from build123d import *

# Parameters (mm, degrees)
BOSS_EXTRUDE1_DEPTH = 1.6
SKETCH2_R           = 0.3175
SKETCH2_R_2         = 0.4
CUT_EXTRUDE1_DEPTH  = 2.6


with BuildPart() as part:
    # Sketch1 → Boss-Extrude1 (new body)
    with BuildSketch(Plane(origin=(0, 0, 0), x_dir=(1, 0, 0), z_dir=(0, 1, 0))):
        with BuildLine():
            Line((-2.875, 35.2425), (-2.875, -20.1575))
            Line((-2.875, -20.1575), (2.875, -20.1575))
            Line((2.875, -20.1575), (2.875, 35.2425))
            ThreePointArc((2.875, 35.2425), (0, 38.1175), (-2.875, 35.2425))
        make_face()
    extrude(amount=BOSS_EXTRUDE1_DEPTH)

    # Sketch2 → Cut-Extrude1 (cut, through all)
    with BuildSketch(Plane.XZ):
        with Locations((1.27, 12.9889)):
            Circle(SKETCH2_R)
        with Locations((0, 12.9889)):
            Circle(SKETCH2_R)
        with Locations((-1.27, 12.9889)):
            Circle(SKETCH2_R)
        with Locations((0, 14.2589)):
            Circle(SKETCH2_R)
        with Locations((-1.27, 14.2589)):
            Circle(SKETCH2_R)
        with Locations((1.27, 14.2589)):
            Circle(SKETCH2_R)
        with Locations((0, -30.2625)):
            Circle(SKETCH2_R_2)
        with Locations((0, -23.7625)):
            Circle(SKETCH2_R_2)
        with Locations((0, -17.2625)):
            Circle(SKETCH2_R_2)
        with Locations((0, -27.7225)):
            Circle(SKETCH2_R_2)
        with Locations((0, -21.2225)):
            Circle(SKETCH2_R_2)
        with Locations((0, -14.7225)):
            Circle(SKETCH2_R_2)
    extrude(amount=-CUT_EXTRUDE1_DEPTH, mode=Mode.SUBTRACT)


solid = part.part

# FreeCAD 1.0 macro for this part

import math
import FreeCAD as App
import Part
import Sketcher

doc = App.newDocument("Part")
body = doc.addObject("PartDesign::Body", "Body")

# Sketch on XZ plane
sketch1 = body.newObject("Sketcher::SketchObject", "Sketch")
sketch1.AttachmentSupport = (doc.getObject("XZ_Plane"), [""])
sketch1.MapMode = "FlatFace"
sketch1.addGeometry([
    Part.LineSegment(App.Vector(-2.9, -35.2, 0), App.Vector(-2.9, 20.2, 0)),
    Part.LineSegment(App.Vector(-2.9, 20.2, 0), App.Vector(2.9, 20.2, 0)),
    Part.LineSegment(App.Vector(2.9, 20.2, 0), App.Vector(2.9, -35.2, 0)),
    Part.ArcOfCircle(Part.Circle(App.Vector(0, -35.2, 0), App.Vector(0, 0, 1), 2.9), math.radians(180), math.radians(360)),
], False)
sketch1.addConstraint([
    Sketcher.Constraint("Coincident", 0, 2, 1, 1),
    Sketcher.Constraint("Coincident", 1, 2, 2, 1),
    Sketcher.Constraint("Tangent", 2, 2, 3, 2),
    Sketcher.Constraint("Tangent", 3, 1, 0, 1),
    Sketcher.Constraint("Vertical", 0),
    Sketcher.Constraint("Horizontal", 1),
    Sketcher.Constraint("Vertical", 2),
    Sketcher.Constraint("PointOnObject", 3, 3, -2),
    Sketcher.Constraint("DistanceY", 0, 1, 0, 2, 55.4),
    Sketcher.Constraint("Radius", 3, 2.875),
    Sketcher.Constraint("DistanceY", 3, 3, -1, 1, 35.2425),
])
pad1 = body.newObject("PartDesign::Pad", "Pad")
pad1.Profile = sketch1
pad1.Length = 1.6
pad1.Reversed = True

# Sketch on XZ plane
sketch2 = body.newObject("Sketcher::SketchObject", "Sketch001")
sketch2.AttachmentSupport = (doc.getObject("XZ_Plane"), [""])
sketch2.MapMode = "FlatFace"
sketch2.addGeometry([
    Part.Circle(App.Vector(1.27, 12.99, 0), App.Vector(0, 0, 1), 0.32),  # 0
    Part.Circle(App.Vector(0, 12.99, 0), App.Vector(0, 0, 1), 0.32),  # 1
    Part.Circle(App.Vector(-1.27, 12.99, 0), App.Vector(0, 0, 1), 0.32),  # 2
    Part.Circle(App.Vector(0, 14.26, 0), App.Vector(0, 0, 1), 0.32),  # 3
    Part.Circle(App.Vector(-1.27, 14.26, 0), App.Vector(0, 0, 1), 0.32),  # 4
    Part.Circle(App.Vector(1.27, 14.26, 0), App.Vector(0, 0, 1), 0.32),  # 5
    Part.Circle(App.Vector(0, -30.26, 0), App.Vector(0, 0, 1), 0.4),  # 6
    Part.Circle(App.Vector(0, -23.76, 0), App.Vector(0, 0, 1), 0.4),  # 7
    Part.Circle(App.Vector(0, -17.26, 0), App.Vector(0, 0, 1), 0.4),  # 8
    Part.Circle(App.Vector(0, -27.72, 0), App.Vector(0, 0, 1), 0.4),  # 9
    Part.Circle(App.Vector(0, -21.22, 0), App.Vector(0, 0, 1), 0.4),  # 10
    Part.Circle(App.Vector(0, -14.72, 0), App.Vector(0, 0, 1), 0.4),  # 11
], False)
sketch2.addConstraint([
    Sketcher.Constraint("Equal", 0, 1),
    Sketcher.Constraint("Equal", 1, 2),
    Sketcher.Constraint("Equal", 2, 3),
    Sketcher.Constraint("Equal", 3, 4),
    Sketcher.Constraint("Equal", 4, 5),
    Sketcher.Constraint("Equal", 6, 7),
    Sketcher.Constraint("Equal", 7, 8),
    Sketcher.Constraint("Equal", 8, 9),
    Sketcher.Constraint("Equal", 9, 10),
    Sketcher.Constraint("Equal", 10, 11),
    Sketcher.Constraint("Symmetric", 0, 3, 2, 3, -2),
    Sketcher.Constraint("Symmetric", 4, 3, 5, 3, -2),
    Sketcher.Constraint("PointOnObject", 1, 3, -2),
    Sketcher.Constraint("PointOnObject", 3, 3, -2),
    Sketcher.Constraint("PointOnObject", 6, 3, -2),
    Sketcher.Constraint("PointOnObject", 7, 3, -2),
    Sketcher.Constraint("PointOnObject", 8, 3, -2),
    Sketcher.Constraint("PointOnObject", 9, 3, -2),
    Sketcher.Constraint("PointOnObject", 10, 3, -2),
    Sketcher.Constraint("PointOnObject", 11, 3, -2),
    Sketcher.Constraint("Horizontal", 0, 3, 1, 3),
    Sketcher.Constraint("Horizontal", 3, 3, 4, 3),
    Sketcher.Constraint("Vertical", 2, 3, 4, 3),
    Sketcher.Constraint("Diameter", 6, 0.8),
    Sketcher.Constraint("Diameter", 0, 0.635),
    Sketcher.Constraint("DistanceY", 6, 3, 8, 3, 13.0),
    Sketcher.Constraint("DistanceY", 9, 3, 11, 3, 13.0),
    Sketcher.Constraint("DistanceY", 6, 3, 7, 3, 6.5),
    Sketcher.Constraint("DistanceY", 9, 3, 10, 3, 6.5),
    Sketcher.Constraint("DistanceX", -1, 1, 0, 3, 1.27),
    Sketcher.Constraint("DistanceY", 1, 3, 3, 3, 1.27),
    Sketcher.Constraint("DistanceY", 6, 3, 9, 3, 2.54),
    Sketcher.Constraint("DistanceY", -1, 1, 0, 3, 12.9889),
    Sketcher.Constraint("DistanceY", 6, 3, -1, 1, 30.2625),
])
pocket1 = body.newObject("PartDesign::Pocket", "Pocket")
pocket1.Profile = sketch2
pocket1.Type = "ThroughAll"

doc.recompute()
